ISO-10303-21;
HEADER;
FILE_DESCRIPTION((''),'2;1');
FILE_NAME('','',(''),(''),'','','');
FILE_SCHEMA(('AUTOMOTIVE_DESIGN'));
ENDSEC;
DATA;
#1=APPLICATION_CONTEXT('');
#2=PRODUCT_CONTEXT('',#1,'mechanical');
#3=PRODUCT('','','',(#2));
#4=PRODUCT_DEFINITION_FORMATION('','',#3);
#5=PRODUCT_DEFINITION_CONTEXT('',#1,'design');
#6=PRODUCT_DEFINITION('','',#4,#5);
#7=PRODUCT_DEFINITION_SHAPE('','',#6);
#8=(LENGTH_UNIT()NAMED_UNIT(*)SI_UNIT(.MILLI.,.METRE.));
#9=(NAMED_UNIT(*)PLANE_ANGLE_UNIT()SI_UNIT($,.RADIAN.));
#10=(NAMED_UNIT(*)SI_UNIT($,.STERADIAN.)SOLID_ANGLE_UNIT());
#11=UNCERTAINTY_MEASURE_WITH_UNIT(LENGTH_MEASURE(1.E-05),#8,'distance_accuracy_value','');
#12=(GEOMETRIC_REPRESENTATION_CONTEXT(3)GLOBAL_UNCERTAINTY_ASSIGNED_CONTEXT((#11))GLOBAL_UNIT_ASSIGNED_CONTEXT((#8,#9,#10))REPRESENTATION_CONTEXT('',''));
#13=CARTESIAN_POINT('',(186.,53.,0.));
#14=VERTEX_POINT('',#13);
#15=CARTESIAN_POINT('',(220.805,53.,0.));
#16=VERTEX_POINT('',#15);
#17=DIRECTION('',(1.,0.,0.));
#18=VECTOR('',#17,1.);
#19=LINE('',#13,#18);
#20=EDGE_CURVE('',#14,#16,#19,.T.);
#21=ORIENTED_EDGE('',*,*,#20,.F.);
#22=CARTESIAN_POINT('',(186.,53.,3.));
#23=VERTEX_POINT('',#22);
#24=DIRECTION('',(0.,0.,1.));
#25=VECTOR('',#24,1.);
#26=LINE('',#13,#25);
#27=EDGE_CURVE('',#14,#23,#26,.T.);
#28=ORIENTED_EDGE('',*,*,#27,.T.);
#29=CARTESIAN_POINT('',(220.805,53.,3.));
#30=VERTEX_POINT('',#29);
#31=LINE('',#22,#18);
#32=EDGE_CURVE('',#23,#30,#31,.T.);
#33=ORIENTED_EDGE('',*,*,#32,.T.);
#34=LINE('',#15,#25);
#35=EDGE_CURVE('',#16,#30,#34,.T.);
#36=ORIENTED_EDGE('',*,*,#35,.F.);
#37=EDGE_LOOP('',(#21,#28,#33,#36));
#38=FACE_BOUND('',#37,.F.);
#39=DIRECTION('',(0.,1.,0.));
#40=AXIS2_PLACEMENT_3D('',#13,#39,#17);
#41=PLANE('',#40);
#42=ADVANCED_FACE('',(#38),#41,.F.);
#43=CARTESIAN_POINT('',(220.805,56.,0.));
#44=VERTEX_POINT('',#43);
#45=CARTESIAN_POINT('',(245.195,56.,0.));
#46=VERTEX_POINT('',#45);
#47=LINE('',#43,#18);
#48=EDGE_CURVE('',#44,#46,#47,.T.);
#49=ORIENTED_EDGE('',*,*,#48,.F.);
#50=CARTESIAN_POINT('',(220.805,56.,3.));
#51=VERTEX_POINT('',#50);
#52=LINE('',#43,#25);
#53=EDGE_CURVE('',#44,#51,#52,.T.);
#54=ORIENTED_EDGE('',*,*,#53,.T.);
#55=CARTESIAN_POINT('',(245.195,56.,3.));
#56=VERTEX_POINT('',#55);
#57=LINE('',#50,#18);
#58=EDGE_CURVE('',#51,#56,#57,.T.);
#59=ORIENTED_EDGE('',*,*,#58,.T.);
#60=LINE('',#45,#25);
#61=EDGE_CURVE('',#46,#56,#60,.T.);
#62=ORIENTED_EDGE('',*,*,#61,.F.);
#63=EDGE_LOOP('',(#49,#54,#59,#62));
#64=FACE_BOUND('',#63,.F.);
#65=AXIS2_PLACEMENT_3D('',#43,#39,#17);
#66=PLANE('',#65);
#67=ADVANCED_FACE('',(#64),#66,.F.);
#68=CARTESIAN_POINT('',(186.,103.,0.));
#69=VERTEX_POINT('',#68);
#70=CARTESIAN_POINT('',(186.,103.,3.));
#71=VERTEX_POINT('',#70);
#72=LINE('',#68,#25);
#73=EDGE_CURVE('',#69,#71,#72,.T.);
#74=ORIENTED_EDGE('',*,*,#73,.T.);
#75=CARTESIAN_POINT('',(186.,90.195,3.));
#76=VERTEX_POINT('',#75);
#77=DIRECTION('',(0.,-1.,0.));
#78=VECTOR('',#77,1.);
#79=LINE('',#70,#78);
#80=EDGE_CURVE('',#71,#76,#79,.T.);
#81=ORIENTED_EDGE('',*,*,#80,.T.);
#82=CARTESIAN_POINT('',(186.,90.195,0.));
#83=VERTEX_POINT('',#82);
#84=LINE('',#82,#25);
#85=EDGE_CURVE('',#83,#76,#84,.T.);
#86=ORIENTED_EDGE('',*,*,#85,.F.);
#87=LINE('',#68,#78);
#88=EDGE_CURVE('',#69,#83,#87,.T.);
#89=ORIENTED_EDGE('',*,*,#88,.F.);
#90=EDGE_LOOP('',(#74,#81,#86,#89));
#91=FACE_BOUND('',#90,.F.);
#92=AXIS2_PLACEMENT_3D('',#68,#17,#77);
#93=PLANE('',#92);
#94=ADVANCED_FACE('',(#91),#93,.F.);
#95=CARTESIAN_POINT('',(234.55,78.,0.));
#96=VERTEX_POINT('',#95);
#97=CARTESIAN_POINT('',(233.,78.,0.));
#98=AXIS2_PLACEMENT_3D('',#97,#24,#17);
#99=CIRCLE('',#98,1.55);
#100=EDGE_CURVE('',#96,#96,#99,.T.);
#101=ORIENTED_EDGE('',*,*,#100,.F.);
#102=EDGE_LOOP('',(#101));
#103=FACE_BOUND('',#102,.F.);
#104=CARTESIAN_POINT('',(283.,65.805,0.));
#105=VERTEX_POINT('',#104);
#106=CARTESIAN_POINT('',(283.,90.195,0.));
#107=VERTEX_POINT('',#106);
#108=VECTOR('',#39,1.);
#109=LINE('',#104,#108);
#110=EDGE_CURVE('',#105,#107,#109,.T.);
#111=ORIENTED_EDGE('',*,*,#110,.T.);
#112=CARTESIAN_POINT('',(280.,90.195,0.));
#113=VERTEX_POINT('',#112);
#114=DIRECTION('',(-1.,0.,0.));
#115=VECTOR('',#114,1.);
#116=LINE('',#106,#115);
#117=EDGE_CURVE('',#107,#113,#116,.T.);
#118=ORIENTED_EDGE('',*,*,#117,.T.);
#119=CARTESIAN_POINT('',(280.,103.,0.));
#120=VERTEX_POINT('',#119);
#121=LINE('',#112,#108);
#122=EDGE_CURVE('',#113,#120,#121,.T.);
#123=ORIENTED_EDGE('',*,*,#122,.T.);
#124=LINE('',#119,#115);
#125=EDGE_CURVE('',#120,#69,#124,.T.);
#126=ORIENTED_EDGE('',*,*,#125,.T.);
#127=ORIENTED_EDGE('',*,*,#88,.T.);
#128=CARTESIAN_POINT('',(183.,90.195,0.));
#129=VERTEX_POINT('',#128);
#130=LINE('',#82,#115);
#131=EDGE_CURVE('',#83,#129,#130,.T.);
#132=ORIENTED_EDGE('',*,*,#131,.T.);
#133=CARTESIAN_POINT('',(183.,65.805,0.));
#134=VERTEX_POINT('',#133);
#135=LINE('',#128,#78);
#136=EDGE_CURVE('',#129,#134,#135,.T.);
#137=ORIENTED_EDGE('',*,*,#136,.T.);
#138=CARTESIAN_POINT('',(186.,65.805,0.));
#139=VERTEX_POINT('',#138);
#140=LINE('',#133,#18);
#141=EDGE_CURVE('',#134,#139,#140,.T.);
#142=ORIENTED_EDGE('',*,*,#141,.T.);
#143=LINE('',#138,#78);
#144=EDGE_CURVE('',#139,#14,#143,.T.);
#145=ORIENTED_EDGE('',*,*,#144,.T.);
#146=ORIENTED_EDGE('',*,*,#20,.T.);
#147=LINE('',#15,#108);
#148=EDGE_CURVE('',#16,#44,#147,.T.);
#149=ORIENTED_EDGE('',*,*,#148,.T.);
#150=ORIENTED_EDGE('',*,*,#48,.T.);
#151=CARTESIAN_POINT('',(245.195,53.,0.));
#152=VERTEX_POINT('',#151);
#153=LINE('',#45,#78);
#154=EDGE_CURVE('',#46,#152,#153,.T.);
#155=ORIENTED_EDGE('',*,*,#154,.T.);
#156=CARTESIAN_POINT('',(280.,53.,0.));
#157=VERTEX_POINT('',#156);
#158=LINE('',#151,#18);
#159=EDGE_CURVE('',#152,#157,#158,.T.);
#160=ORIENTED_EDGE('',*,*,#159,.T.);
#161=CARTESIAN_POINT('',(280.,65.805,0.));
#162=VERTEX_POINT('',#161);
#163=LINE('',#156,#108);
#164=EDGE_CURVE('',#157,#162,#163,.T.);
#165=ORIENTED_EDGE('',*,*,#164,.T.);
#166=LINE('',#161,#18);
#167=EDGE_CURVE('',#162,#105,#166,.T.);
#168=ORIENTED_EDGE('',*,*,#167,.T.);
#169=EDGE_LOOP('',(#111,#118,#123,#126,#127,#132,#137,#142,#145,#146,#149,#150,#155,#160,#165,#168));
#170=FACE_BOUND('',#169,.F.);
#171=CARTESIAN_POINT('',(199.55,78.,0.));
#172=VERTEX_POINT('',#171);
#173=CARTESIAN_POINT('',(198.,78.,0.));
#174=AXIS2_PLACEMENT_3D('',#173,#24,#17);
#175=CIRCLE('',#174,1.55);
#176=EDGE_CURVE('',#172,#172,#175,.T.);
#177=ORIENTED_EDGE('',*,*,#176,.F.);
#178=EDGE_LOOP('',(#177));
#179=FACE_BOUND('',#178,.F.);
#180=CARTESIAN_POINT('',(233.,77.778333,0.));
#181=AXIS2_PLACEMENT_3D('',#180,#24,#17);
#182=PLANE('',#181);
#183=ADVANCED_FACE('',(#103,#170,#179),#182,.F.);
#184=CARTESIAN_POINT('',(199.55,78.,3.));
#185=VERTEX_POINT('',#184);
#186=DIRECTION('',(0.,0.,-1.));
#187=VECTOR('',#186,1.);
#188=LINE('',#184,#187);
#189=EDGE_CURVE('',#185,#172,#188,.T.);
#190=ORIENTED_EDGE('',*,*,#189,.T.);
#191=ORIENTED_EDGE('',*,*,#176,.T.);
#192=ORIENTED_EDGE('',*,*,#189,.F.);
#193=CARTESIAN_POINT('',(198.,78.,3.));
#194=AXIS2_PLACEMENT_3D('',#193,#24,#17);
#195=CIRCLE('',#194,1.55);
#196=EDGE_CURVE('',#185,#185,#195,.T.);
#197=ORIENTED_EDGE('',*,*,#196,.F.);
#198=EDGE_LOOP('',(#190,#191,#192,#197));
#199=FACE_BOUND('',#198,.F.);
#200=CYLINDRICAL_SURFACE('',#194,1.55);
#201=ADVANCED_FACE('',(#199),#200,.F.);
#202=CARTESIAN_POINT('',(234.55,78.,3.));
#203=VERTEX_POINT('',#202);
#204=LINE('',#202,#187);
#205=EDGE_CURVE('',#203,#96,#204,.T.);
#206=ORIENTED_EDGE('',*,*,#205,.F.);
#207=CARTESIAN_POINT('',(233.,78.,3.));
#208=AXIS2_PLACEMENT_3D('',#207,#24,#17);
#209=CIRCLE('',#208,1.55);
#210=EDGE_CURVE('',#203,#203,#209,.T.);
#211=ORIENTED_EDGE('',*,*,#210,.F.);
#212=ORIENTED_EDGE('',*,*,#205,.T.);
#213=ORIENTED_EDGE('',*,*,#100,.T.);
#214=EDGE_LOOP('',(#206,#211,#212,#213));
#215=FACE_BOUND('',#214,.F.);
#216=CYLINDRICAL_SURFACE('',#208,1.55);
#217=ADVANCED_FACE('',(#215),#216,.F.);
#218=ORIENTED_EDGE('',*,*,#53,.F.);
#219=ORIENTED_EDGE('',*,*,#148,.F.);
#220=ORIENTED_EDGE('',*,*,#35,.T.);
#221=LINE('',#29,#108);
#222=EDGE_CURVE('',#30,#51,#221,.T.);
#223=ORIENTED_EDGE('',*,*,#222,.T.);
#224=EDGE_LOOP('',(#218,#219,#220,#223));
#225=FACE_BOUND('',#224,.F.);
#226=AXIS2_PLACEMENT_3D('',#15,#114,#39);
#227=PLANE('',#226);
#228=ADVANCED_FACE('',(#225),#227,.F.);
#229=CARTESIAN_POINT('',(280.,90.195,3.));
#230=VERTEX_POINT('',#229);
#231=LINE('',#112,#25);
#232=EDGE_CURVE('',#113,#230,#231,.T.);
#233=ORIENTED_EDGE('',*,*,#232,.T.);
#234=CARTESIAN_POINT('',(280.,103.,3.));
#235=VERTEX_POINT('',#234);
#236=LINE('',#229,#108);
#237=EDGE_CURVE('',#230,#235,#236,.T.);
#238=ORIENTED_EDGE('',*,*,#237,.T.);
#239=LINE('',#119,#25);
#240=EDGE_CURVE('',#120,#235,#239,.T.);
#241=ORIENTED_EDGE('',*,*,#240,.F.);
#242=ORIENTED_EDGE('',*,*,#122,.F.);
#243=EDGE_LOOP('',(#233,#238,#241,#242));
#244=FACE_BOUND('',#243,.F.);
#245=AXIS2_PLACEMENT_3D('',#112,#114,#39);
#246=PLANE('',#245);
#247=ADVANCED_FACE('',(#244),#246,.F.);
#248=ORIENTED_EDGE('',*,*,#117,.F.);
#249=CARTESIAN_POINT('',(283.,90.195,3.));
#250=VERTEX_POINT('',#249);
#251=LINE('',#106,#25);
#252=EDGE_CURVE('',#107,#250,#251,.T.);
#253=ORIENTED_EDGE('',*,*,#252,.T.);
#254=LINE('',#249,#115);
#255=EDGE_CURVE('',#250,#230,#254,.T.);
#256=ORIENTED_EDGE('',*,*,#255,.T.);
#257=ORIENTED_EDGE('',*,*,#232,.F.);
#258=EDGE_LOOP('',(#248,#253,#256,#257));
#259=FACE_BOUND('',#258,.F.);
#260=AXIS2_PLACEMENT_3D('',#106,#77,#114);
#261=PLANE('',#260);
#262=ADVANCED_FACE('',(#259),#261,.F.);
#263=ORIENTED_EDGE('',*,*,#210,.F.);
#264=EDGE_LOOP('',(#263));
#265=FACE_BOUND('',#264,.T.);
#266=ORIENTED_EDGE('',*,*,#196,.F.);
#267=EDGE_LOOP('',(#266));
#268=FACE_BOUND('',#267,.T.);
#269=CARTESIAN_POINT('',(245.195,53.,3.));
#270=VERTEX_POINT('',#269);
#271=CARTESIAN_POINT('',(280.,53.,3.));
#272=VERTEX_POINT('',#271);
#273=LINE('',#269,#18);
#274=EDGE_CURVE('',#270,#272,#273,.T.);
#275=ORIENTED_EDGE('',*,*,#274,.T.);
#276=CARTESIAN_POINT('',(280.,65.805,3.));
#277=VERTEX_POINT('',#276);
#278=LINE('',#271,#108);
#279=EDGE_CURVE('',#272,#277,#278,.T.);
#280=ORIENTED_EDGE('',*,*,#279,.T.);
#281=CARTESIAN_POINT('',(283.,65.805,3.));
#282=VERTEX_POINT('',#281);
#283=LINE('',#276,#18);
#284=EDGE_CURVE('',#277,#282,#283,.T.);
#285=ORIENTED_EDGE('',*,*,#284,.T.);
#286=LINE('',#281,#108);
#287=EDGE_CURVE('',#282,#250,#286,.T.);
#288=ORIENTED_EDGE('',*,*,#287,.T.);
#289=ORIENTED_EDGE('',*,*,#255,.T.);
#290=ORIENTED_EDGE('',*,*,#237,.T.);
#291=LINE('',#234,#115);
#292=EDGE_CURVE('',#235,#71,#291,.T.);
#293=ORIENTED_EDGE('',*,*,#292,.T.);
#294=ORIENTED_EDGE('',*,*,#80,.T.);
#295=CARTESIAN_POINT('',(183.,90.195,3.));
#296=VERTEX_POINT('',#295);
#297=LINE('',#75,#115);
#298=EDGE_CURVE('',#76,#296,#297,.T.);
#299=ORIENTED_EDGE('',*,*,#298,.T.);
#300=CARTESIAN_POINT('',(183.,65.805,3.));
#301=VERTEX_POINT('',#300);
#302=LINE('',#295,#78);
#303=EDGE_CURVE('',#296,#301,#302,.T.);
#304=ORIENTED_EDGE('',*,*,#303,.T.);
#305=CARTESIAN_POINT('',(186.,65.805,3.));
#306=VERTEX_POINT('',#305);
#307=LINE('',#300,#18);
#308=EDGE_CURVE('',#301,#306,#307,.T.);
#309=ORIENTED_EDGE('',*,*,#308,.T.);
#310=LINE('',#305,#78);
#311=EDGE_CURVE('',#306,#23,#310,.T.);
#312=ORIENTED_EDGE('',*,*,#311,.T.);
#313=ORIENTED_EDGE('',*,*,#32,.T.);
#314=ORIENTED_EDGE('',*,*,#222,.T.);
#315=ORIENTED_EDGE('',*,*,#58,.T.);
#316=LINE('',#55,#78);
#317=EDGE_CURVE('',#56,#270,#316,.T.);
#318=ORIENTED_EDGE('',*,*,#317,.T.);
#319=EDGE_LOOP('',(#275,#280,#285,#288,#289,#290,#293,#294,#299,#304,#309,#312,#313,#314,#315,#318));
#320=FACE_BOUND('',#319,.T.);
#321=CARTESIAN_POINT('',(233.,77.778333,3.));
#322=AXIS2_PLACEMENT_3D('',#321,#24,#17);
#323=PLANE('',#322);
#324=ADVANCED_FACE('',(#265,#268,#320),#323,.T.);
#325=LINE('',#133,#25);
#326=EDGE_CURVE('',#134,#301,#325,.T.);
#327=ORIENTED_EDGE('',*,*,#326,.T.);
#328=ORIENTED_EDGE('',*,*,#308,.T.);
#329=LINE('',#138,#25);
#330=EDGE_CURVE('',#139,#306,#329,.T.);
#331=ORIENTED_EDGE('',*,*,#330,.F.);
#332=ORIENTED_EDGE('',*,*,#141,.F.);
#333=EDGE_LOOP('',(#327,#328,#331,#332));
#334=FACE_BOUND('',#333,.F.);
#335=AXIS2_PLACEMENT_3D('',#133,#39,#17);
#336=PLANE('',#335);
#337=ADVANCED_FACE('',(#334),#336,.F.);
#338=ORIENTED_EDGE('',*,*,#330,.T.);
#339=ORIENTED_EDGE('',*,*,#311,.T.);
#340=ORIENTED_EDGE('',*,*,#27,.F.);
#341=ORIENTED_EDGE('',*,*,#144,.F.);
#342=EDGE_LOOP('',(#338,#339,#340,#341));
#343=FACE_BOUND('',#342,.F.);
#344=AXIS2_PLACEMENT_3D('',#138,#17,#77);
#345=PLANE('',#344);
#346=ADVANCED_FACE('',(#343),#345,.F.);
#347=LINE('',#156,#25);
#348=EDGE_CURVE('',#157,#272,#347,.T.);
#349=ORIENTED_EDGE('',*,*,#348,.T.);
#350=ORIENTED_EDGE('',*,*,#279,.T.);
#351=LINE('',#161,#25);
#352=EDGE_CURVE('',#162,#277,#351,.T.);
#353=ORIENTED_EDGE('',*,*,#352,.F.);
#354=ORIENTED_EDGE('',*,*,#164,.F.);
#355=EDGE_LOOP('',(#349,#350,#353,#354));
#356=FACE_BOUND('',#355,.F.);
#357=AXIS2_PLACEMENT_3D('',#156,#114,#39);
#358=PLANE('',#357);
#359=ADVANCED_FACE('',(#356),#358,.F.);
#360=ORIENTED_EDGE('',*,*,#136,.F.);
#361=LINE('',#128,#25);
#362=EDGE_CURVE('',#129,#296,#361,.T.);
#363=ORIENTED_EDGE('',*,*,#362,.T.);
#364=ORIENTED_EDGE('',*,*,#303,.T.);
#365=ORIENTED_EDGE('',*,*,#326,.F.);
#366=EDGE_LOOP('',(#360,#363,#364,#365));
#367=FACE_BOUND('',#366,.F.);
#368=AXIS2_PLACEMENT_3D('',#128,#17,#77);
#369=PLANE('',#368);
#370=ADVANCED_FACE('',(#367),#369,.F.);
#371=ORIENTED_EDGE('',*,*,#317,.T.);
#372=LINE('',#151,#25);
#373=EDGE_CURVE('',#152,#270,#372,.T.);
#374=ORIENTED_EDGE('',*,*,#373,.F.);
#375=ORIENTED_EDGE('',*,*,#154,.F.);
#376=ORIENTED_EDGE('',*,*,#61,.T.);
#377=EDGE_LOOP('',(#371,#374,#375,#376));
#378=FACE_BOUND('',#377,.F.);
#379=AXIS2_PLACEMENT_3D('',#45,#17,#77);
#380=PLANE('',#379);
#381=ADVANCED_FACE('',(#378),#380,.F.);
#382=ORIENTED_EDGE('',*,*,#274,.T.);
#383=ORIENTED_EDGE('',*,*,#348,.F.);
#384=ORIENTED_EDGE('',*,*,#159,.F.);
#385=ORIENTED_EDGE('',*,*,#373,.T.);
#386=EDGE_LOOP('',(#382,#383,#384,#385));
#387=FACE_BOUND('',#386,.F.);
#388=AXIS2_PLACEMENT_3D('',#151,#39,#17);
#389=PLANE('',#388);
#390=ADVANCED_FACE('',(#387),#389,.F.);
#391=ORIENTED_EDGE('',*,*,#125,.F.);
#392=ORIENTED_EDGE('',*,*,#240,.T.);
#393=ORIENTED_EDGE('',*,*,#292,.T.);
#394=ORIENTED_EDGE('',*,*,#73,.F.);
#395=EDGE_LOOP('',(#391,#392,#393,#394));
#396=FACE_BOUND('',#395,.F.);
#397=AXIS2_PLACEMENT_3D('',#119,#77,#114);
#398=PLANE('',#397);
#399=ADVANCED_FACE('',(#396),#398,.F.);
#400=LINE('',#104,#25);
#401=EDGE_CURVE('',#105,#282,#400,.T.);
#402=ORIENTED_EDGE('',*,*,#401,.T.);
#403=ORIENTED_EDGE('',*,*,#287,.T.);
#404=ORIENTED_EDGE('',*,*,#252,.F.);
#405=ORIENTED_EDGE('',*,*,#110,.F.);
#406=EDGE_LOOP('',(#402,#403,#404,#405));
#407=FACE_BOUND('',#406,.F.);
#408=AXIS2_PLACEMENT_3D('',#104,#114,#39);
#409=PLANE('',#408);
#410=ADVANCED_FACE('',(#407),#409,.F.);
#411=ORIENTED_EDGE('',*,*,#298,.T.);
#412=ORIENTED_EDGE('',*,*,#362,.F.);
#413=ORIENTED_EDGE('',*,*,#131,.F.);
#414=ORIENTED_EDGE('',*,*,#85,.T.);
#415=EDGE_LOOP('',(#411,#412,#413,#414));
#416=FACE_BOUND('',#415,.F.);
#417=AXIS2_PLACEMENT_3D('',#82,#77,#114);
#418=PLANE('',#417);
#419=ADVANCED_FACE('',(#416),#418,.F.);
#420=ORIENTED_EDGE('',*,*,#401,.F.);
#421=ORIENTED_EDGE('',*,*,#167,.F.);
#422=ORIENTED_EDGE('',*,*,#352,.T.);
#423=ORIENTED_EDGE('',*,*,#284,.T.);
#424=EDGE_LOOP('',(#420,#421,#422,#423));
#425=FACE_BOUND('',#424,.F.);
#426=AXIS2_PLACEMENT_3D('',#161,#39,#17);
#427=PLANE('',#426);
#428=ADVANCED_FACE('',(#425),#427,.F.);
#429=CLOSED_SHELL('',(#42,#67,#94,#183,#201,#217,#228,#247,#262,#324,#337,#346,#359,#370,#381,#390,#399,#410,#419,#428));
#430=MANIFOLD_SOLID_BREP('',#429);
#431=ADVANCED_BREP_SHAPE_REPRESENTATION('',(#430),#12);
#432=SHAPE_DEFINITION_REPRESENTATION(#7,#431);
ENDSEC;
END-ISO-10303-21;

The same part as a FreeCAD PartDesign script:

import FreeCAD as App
import Part
import Sketcher
from FreeCAD import Vector
Q = App.Units.Quantity


def add_polygon(sketch, points):
    """Adds a closed chain of lines whose ends are joined by coincident constraints."""
    first, n = sketch.GeometryCount, len(points)
    for a, b in zip(points, points[1:] + points[:1]):
        sketch.addGeometry(Part.LineSegment(App.Vector(*a, 0), App.Vector(*b, 0)), False)
    for i in range(n):
        sketch.addConstraint(Sketcher.Constraint("Coincident", first + i, 2, first + (i + 1) % n, 1))

doc = App.newDocument("Part")
params = doc.addObject("Spreadsheet::Sheet", "Params")
for row, (alias, value) in enumerate([
    ("sketch1_width", "3 mm"),
    ("sketch1_width2", "94 mm"),
    ("sketch1_width3", "24.39 mm"),
    ("pad1_length", "3 mm"),
    ("sketch2_diameter", "3.1 mm"),
    ("pocket1_length", "3 mm"),
], start=1):
    params.set(f"A{row}", alias)
    params.set(f"B{row}", "=" + value)
    params.setAlias(f"B{row}", alias)

body = doc.addObject("PartDesign::Body", "Body")

# Sketch on XY plane
sketch1 = doc.addObject("Sketcher::SketchObject", "Sketch")
body.addObject(sketch1)
sketch1.AttachmentSupport = (doc.XY_Plane, [""])
sketch1.MapMode = "FlatFace"
add_polygon(sketch1, [(186, 103), (186, 90.2), (183, 90.2), (183, 65.8), (186, 65.8), (186, 53), (220.8, 53), (220.8, 56), (245.2, 56), (245.2, 53), (280, 53), (280, 65.8), (283, 65.8), (283, 90.2), (280, 90.2), (280, 103)])  # lines 0-15
sketch1.addConstraint(Sketcher.Constraint("Vertical", 0))
sketch1.addConstraint(Sketcher.Constraint("Horizontal", 1))
sketch1.addConstraint(Sketcher.Constraint("Vertical", 2))
sketch1.addConstraint(Sketcher.Constraint("Horizontal", 3))
sketch1.addConstraint(Sketcher.Constraint("Vertical", 4))
sketch1.addConstraint(Sketcher.Constraint("Horizontal", 5))
sketch1.addConstraint(Sketcher.Constraint("Vertical", 6))
sketch1.addConstraint(Sketcher.Constraint("Horizontal", 7))
sketch1.addConstraint(Sketcher.Constraint("Vertical", 8))
sketch1.addConstraint(Sketcher.Constraint("Horizontal", 9))
sketch1.addConstraint(Sketcher.Constraint("Vertical", 10))
sketch1.addConstraint(Sketcher.Constraint("Horizontal", 11))
sketch1.addConstraint(Sketcher.Constraint("Vertical", 12))
sketch1.addConstraint(Sketcher.Constraint("Horizontal", 13))
sketch1.addConstraint(Sketcher.Constraint("Vertical", 14))
sketch1.addConstraint(Sketcher.Constraint("Horizontal", 15))
sketch1.addConstraint(Sketcher.Constraint("Horizontal", 5, 2, 8, 2))
sketch1.addConstraint(Sketcher.Constraint("Horizontal", 3, 2, 10, 2))
sketch1.addConstraint(Sketcher.Constraint("Horizontal", 1, 2, 12, 2))
sketch1.addConstraint(Sketcher.Constraint("Vertical", 0, 2, 3, 2))
sketch1.addConstraint(Sketcher.Constraint("Vertical", 10, 2, 13, 2))
sketch1.addConstraint(Sketcher.Constraint("Equal", 5, 9))
sketch1.addConstraint(Sketcher.Constraint("Equal", 3, 11))
sketch1.addConstraint(Sketcher.Constraint("Equal", 7, 2))
sketch1.addConstraint(Sketcher.Constraint("Equal", 0, 4))
sketch1.addConstraint(Sketcher.Constraint("Equal", 13, 6))
sketch1.addConstraint(Sketcher.Constraint("DistanceX", 1, 2, 1, 1, Q("3 mm")))
sketch1.addConstraint(Sketcher.Constraint("DistanceX", 15, 2, 15, 1, Q("94 mm")))
sketch1.addConstraint(Sketcher.Constraint("DistanceX", -1, 1, 0, 2, Q("186 mm")))
sketch1.addConstraint(Sketcher.Constraint("DistanceY", -1, 1, 4, 2, Q("53 mm")))
sketch1.addConstraint(Sketcher.Constraint("DistanceY", -1, 1, 14, 2, Q("103 mm")))
sketch1.addConstraint(Sketcher.Constraint("DistanceX", 7, 1, 7, 2, Q("24.39 mm")))
sketch1.setExpression("Constraints[42]", "Params.sketch1_width")
sketch1.setExpression("Constraints[43]", "Params.sketch1_width2")
sketch1.setExpression("Constraints[47]", "Params.sketch1_width3")
pad1 = doc.addObject("PartDesign::Pad", "Pad")
body.addObject(pad1)
pad1.Profile = sketch1
pad1.setExpression("Length", "Params.pad1_length")

# Sketch on XY plane
sketch2 = doc.addObject("Sketcher::SketchObject", "Sketch001")
body.addObject(sketch2)
sketch2.AttachmentSupport = (doc.XY_Plane, [""])
sketch2.MapMode = "FlatFace"
sketch2.AttachmentOffset = App.Placement(Vector(0, 0, 3), App.Rotation())
sketch2.addGeometry(Part.Circle(Vector(233, 78, 0), Vector(0, 0, 1), 1.6), False)
sketch2.addGeometry(Part.Circle(Vector(198, 78, 0), Vector(0, 0, 1), 1.6), False)
sketch2.addConstraint(Sketcher.Constraint("Equal", 0, 1))
sketch2.addConstraint(Sketcher.Constraint("Horizontal", 0, 3, 1, 3))
sketch2.addConstraint(Sketcher.Constraint("Diameter", 0, Q("3.1 mm")))
sketch2.addConstraint(Sketcher.Constraint("DistanceX", -1, 1, 0, 3, Q("233 mm")))
sketch2.addConstraint(Sketcher.Constraint("DistanceY", -1, 1, 0, 3, Q("78 mm")))
sketch2.addConstraint(Sketcher.Constraint("DistanceX", -1, 1, 1, 3, Q("198 mm")))
sketch2.setExpression("Constraints[2]", "Params.sketch2_diameter")
pocket1 = doc.addObject("PartDesign::Pocket", "Pocket")
body.addObject(pocket1)
pocket1.Profile = sketch2
pocket1.setExpression("Length", "Params.pocket1_length")

doc.recompute()
